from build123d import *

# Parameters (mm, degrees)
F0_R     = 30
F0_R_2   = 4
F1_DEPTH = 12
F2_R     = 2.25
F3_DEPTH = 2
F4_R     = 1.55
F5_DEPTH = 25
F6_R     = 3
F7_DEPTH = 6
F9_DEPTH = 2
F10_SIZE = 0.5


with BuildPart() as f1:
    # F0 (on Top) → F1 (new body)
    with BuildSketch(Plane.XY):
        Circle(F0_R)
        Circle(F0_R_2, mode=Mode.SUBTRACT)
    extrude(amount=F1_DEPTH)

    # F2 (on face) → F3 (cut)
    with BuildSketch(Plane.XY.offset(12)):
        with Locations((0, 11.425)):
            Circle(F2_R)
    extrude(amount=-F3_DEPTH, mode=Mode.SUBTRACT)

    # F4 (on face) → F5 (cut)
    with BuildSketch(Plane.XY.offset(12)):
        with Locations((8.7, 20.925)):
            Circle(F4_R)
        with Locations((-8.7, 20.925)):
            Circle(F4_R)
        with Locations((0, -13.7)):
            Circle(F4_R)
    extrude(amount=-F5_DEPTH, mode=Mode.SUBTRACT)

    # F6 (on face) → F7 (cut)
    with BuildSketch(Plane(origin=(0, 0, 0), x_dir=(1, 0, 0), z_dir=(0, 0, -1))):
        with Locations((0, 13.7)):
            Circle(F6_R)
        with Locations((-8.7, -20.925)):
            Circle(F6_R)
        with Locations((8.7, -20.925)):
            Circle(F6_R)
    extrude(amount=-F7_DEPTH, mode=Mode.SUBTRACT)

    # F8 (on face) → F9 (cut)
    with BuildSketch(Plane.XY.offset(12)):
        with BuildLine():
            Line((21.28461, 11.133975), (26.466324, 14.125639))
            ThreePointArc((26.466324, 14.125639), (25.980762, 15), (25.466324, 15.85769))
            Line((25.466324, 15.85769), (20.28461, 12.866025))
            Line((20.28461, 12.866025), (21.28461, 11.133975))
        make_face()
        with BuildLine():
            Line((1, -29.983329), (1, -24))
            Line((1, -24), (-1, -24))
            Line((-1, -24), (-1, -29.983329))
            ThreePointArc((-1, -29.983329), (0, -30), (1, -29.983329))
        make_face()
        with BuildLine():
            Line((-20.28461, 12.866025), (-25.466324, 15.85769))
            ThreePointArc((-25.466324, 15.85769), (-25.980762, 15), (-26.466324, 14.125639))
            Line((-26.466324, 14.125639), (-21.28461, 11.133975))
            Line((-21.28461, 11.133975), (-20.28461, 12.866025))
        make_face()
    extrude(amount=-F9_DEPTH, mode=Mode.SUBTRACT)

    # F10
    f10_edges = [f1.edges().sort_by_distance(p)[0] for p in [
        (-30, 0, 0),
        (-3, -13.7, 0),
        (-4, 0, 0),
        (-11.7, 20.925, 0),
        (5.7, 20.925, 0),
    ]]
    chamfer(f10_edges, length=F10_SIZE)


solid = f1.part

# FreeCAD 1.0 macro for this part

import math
import FreeCAD as App
import Part
import Sketcher
from FreeCAD import Vector
Q = App.Units.Quantity


def edges_at(feature, points):
    """Names of the edges that pass closest to the given points."""
    edges = feature.Shape.Edges
    near = lambda p: min(range(len(edges)), key=lambda i: edges[i].distToShape(Part.Vertex(*p))[0])
    return sorted({f"Edge{near(p) + 1}" for p in points})

doc = App.newDocument("Part")
body = doc.addObject("PartDesign::Body", "Body")

# Sketch on XY plane
sketch1 = doc.addObject("Sketcher::SketchObject", "Sketch")
body.addObject(sketch1)
sketch1.AttachmentSupport = (doc.XY_Plane, [""])
sketch1.MapMode = "FlatFace"
sketch1.addGeometry([
    Part.Circle(Vector(0, 0, 0), Vector(0, 0, 1), 30),
    Part.Circle(Vector(0, 0, 0), Vector(0, 0, 1), 4),
], False)
sketch1.addConstraint([
    Sketcher.Constraint("Coincident", 0, 3, -1, 1),
    Sketcher.Constraint("Coincident", 1, 3, -1, 1),
    Sketcher.Constraint("Diameter", 0, Q("60 mm")),
    Sketcher.Constraint("Diameter", 1, Q("8 mm")),
])
pad1 = doc.addObject("PartDesign::Pad", "Pad")
body.addObject(pad1)
pad1.Profile = sketch1
pad1.Length = 12

# Sketch on XY plane
sketch2 = doc.addObject("Sketcher::SketchObject", "Sketch001")
body.addObject(sketch2)
sketch2.AttachmentSupport = (doc.XY_Plane, [""])
sketch2.MapMode = "FlatFace"
sketch2.AttachmentOffset = App.Placement(Vector(0, 0, 12), App.Rotation())
sketch2.addGeometry(Part.Circle(Vector(0, 11.4, 0), Vector(0, 0, 1), 2.2), False)
sketch2.addConstraint([
    Sketcher.Constraint("PointOnObject", 0, 3, -2),
    Sketcher.Constraint("Diameter", 0, Q("4.5 mm")),
    Sketcher.Constraint("DistanceY", -1, 1, 0, 3, Q("11.425 mm")),
])
pocket1 = doc.addObject("PartDesign::Pocket", "Pocket")
body.addObject(pocket1)
pocket1.Profile = sketch2
pocket1.Length = 2

# Sketch on XY plane
sketch3 = doc.addObject("Sketcher::SketchObject", "Sketch002")
body.addObject(sketch3)
sketch3.AttachmentSupport = (doc.XY_Plane, [""])
sketch3.MapMode = "FlatFace"
sketch3.AttachmentOffset = App.Placement(Vector(0, 0, 12), App.Rotation())
sketch3.addGeometry([
    Part.Circle(Vector(8.7, 20.9, 0), Vector(0, 0, 1), 1.6),
    Part.Circle(Vector(-8.7, 20.9, 0), Vector(0, 0, 1), 1.6),
    Part.Circle(Vector(0, -13.7, 0), Vector(0, 0, 1), 1.6),
], False)
sketch3.addConstraint([
    Sketcher.Constraint("Equal", 0, 1),
    Sketcher.Constraint("Equal", 1, 2),
    Sketcher.Constraint("Symmetric", 0, 3, 1, 3, -2),
    Sketcher.Constraint("PointOnObject", 2, 3, -2),
    Sketcher.Constraint("Diameter", 0, Q("3.1 mm")),
    Sketcher.Constraint("DistanceX", -1, 1, 0, 3, Q("8.7 mm")),
    Sketcher.Constraint("DistanceY", 2, 3, -1, 1, Q("13.7 mm")),
    Sketcher.Constraint("DistanceY", -1, 1, 0, 3, Q("20.925 mm")),
])
pocket2 = doc.addObject("PartDesign::Pocket", "Pocket001")
body.addObject(pocket2)
pocket2.Profile = sketch3
pocket2.Length = 25

# Sketch on XY plane
sketch4 = doc.addObject("Sketcher::SketchObject", "Sketch003")
body.addObject(sketch4)
sketch4.AttachmentSupport = (doc.XY_Plane, [""])
sketch4.MapMode = "FlatFace"
sketch4.addGeometry([
    Part.Circle(Vector(0, -13.7, 0), Vector(0, 0, 1), 3),
    Part.Circle(Vector(-8.7, 20.9, 0), Vector(0, 0, 1), 3),
    Part.Circle(Vector(8.7, 20.9, 0), Vector(0, 0, 1), 3),
], False)
sketch4.addConstraint([
    Sketcher.Constraint("Equal", 0, 1),
    Sketcher.Constraint("Equal", 1, 2),
    Sketcher.Constraint("Symmetric", 1, 3, 2, 3, -2),
    Sketcher.Constraint("PointOnObject", 0, 3, -2),
    Sketcher.Constraint("Diameter", 0, Q("6 mm")),
    Sketcher.Constraint("DistanceY", 0, 3, -1, 1, Q("13.7 mm")),
    Sketcher.Constraint("DistanceX", 1, 3, -1, 1, Q("8.7 mm")),
    Sketcher.Constraint("DistanceY", -1, 1, 1, 3, Q("20.925 mm")),
])
pocket3 = doc.addObject("PartDesign::Pocket", "Pocket002")
body.addObject(pocket3)
pocket3.Profile = sketch4
pocket3.Length = 6
pocket3.Reversed = True

# Sketch on XY plane
sketch5 = doc.addObject("Sketcher::SketchObject", "Sketch004")
body.addObject(sketch5)
sketch5.AttachmentSupport = (doc.XY_Plane, [""])
sketch5.MapMode = "FlatFace"
sketch5.AttachmentOffset = App.Placement(Vector(0, 0, 12), App.Rotation())
sketch5.addGeometry([
    Part.LineSegment(Vector(21.28461, 11.133975, 0), Vector(26.466324, 14.125639, 0)),  # 0
    Part.ArcOfCircle(Part.Circle(Vector(0.000191, 0.000112, 0), Vector(0, 0, 1), 29.999779), math.radians(28.08977), math.radians(31.910225)),  # 1
    Part.LineSegment(Vector(25.466324, 15.85769, 0), Vector(20.28461, 12.866025, 0)),  # 2
    Part.LineSegment(Vector(20.28461, 12.866025, 0), Vector(21.28461, 11.133975, 0)),  # 3
    Part.LineSegment(Vector(1, -29.983329, 0), Vector(1, -24, 0)),  # 4
    Part.LineSegment(Vector(1, -24, 0), Vector(-1, -24, 0)),  # 5
    Part.LineSegment(Vector(-1, -24, 0), Vector(-1, -29.983329, 0)),  # 6
    Part.ArcOfCircle(Part.Circle(Vector(0, 0.000538, 0), Vector(0, 0, 1), 30.000538), math.radians(-91.910179), math.radians(-88.089821)),  # 7
    Part.LineSegment(Vector(-20.28461, 12.866025, 0), Vector(-25.466324, 15.85769, 0)),  # 8
    Part.ArcOfCircle(Part.Circle(Vector(-0.000191, 0.000112, 0), Vector(0, 0, 1), 29.999779), math.radians(148.089775), math.radians(151.91023)),  # 9
    Part.LineSegment(Vector(-26.466324, 14.125639, 0), Vector(-21.28461, 11.133975, 0)),  # 10
    Part.LineSegment(Vector(-21.28461, 11.133975, 0), Vector(-20.28461, 12.866025, 0)),  # 11
], False)
sketch5.addConstraint([
    Sketcher.Constraint("Coincident", 0, 2, 1, 1),
    Sketcher.Constraint("Coincident", 1, 2, 2, 1),
    Sketcher.Constraint("Coincident", 2, 2, 3, 1),
    Sketcher.Constraint("Coincident", 3, 2, 0, 1),
    Sketcher.Constraint("Coincident", 4, 2, 5, 1),
    Sketcher.Constraint("Coincident", 5, 2, 6, 1),
    Sketcher.Constraint("Coincident", 6, 2, 7, 1),
    Sketcher.Constraint("Coincident", 7, 2, 4, 1),
    Sketcher.Constraint("Coincident", 8, 2, 9, 1),
    Sketcher.Constraint("Coincident", 9, 2, 10, 1),
    Sketcher.Constraint("Coincident", 10, 2, 11, 1),
    Sketcher.Constraint("Coincident", 11, 2, 8, 1),
    Sketcher.Constraint("Vertical", 4),
    Sketcher.Constraint("Horizontal", 5),
    Sketcher.Constraint("Vertical", 6),
    Sketcher.Constraint("Equal", 1, 9),
    Sketcher.Constraint("Symmetric", 1, 3, 9, 3, -2),
    Sketcher.Constraint("Symmetric", 6, 2, 7, 2, -2),
    Sketcher.Constraint("Symmetric", 3, 2, 10, 2, -2),
    Sketcher.Constraint("Symmetric", 2, 2, 11, 2, -2),
    Sketcher.Constraint("Parallel", 0, 2),
    Sketcher.Constraint("Perpendicular", 2, 3),
    Sketcher.Constraint("Parallel", 8, 10),
    Sketcher.Constraint("Perpendicular", 10, 11),
    Sketcher.Constraint("Equal", 0, 2),
    Sketcher.Constraint("DistanceX", 5, 2, 5, 1, Q("2 mm")),
    Sketcher.Constraint("Angle", 0, Q("30 deg")),
    Sketcher.Constraint("Distance", 3, Q("1.999999 mm")),
    Sketcher.Constraint("DistanceY", 4, 2, -1, 1, Q("24 mm")),
    Sketcher.Constraint("Radius", 1, Q("29.999779 mm")),
    Sketcher.Constraint("Radius", 7, Q("30.000538 mm")),
    Sketcher.Constraint("DistanceY", 4, 1, 4, 2, Q("5.983329 mm")),
    Sketcher.Constraint("DistanceY", 7, 3, 0, 2, Q("14.125101 mm")),
    Sketcher.Constraint("DistanceX", 9, 3, 2, 2, Q("20.284801 mm")),
    Sketcher.Constraint("Distance", 2, Q("5.983328 mm")),
])
pocket4 = doc.addObject("PartDesign::Pocket", "Pocket003")
body.addObject(pocket4)
pocket4.Profile = sketch5
pocket4.Length = 2
doc.recompute()

chamfer = doc.addObject("PartDesign::Chamfer", "Chamfer")
body.addObject(chamfer)
chamfer.Base = (pocket4, edges_at(pocket4, [
    (-30, 0, 0),
    (-3, -13.7, 0),
    (-4, 0, 0),
    (-11.7, 20.925, 0),
    (5.7, 20.925, 0),
]))
chamfer.Size = 0.5

doc.recompute()
